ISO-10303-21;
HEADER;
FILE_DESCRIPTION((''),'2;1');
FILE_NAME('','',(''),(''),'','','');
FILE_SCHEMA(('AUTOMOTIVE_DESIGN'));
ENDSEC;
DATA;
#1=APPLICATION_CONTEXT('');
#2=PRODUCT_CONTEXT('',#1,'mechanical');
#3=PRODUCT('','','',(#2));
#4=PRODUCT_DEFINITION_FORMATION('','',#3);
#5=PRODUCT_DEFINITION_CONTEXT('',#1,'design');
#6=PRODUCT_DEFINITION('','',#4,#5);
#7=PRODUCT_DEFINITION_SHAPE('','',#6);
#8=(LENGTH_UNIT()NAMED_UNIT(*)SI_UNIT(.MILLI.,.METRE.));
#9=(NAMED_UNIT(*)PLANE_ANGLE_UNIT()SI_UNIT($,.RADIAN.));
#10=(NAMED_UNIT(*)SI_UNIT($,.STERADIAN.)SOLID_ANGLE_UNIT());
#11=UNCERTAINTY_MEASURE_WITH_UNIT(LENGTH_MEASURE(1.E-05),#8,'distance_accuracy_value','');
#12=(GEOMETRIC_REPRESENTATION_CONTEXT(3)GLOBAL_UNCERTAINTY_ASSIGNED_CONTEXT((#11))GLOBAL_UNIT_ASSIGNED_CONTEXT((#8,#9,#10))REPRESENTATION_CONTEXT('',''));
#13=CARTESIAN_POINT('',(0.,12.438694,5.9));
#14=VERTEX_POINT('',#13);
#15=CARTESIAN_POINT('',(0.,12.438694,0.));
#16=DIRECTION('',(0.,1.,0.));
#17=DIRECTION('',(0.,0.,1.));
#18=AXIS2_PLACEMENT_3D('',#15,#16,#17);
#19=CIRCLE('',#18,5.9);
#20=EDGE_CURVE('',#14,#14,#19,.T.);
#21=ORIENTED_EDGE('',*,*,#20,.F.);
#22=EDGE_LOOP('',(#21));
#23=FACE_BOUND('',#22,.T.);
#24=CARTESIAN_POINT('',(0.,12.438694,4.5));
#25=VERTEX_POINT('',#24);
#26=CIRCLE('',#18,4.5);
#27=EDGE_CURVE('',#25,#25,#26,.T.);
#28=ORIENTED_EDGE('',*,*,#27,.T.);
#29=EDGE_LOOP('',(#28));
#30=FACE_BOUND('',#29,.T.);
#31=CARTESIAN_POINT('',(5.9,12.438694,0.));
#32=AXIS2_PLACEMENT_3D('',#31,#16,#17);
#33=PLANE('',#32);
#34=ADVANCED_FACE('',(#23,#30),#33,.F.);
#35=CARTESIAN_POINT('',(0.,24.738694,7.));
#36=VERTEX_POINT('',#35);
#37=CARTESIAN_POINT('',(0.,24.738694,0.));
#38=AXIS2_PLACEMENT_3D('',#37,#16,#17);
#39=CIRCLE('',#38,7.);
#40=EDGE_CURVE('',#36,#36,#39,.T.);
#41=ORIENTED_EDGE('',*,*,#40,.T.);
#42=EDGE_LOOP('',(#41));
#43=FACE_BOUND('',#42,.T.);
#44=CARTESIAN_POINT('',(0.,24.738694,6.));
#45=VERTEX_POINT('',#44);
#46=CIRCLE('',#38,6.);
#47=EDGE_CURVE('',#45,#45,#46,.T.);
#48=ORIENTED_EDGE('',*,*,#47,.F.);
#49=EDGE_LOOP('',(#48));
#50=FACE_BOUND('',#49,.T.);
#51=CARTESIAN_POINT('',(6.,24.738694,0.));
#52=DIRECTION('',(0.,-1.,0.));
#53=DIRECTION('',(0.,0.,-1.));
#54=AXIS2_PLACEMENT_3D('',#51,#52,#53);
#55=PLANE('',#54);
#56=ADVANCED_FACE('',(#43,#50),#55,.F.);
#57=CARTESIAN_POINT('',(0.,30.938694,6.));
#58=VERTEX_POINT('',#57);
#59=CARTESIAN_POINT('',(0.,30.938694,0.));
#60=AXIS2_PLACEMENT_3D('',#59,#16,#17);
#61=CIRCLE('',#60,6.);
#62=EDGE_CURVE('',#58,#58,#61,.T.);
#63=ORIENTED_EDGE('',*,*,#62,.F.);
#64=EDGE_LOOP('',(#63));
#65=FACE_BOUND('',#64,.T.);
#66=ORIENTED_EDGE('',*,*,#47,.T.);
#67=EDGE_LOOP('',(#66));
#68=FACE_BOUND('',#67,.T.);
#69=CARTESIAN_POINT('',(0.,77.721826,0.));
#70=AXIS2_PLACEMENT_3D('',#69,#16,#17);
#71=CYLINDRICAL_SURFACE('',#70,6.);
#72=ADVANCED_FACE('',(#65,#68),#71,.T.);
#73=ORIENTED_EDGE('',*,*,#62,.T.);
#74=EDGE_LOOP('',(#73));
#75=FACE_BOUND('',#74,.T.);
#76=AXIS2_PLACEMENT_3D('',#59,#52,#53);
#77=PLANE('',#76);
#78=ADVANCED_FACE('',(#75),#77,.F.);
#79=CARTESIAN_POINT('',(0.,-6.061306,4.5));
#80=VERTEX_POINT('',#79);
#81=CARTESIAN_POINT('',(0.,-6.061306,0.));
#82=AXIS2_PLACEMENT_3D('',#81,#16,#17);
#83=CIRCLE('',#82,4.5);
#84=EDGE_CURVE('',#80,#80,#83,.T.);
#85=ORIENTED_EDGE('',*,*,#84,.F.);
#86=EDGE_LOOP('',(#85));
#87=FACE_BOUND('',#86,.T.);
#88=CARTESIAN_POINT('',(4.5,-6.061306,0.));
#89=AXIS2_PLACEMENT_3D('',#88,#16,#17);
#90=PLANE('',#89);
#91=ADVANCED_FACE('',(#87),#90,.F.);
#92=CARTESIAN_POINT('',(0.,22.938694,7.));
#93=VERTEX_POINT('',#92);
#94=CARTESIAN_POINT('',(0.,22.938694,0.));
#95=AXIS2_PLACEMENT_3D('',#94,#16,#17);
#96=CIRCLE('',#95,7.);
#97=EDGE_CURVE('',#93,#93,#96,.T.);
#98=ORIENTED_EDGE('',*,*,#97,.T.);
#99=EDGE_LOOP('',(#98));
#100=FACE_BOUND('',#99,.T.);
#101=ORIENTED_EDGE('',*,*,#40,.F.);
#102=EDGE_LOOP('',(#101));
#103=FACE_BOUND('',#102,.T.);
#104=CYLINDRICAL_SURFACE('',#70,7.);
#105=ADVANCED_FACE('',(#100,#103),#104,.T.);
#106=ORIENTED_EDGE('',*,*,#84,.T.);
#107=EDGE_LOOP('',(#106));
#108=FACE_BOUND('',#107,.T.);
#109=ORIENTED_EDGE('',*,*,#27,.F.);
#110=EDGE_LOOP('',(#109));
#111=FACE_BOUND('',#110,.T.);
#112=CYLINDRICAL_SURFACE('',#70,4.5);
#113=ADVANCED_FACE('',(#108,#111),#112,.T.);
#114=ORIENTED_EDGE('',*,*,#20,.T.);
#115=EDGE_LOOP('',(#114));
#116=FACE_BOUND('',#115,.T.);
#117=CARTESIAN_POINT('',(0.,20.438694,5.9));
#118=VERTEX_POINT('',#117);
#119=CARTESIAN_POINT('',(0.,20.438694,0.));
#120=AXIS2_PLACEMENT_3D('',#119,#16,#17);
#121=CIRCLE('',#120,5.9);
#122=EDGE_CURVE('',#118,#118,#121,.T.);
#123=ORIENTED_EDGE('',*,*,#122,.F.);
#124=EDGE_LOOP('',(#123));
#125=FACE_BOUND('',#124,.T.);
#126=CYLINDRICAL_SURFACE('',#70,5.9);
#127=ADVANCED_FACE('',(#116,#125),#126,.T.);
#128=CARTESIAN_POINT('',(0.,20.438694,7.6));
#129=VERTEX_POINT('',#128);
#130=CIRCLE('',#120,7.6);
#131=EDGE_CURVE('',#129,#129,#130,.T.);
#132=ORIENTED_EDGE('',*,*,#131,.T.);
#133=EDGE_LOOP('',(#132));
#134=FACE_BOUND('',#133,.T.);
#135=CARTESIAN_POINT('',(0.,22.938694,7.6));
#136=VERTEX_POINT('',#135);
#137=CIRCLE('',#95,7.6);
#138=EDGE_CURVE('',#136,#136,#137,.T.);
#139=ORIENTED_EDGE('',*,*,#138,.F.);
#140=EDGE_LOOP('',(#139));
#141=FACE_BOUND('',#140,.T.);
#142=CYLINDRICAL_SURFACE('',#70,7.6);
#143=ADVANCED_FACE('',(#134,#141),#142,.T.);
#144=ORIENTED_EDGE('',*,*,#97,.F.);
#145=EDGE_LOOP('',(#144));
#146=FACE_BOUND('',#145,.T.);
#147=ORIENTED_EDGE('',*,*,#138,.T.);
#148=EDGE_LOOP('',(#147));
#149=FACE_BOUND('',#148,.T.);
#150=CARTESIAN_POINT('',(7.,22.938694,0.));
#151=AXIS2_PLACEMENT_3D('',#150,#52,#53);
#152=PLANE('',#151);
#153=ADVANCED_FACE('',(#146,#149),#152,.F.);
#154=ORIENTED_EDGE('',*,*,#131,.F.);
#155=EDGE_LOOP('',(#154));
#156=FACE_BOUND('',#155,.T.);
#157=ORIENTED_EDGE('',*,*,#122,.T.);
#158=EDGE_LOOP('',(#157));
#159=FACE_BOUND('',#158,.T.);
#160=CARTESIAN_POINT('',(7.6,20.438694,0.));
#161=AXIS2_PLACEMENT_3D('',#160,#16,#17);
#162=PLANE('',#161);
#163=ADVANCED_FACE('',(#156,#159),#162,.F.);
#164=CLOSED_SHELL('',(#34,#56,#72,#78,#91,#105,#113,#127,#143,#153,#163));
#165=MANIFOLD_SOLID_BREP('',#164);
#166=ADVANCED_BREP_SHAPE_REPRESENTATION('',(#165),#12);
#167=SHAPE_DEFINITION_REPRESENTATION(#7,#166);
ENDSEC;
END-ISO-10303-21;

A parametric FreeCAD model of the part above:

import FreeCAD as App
import Part
import Sketcher

V = App.Vector
Q = App.Units.Quantity

doc = App.newDocument("Part")
body = doc.addObject("PartDesign::Body", "Body")

# Sketch on XY plane
sketch1 = body.newObject("Sketcher::SketchObject", "Sketch")
sketch1.AttachmentSupport = (doc.getObject("XY_Plane"), [""])
sketch1.MapMode = "FlatFace"
sketch1.addGeometry(Part.LineSegment(V(6, 30.9, 0), V(0, 30.9, 0)), False)
sketch1.addGeometry(Part.LineSegment(V(0, 30.9, 0), V(0, -6.1, 0)), False)
sketch1.addGeometry(Part.LineSegment(V(0, -6.1, 0), V(4.5, -6.1, 0)), False)
sketch1.addGeometry(Part.LineSegment(V(4.5, -6.1, 0), V(4.5, 12.4, 0)), False)
sketch1.addGeometry(Part.LineSegment(V(4.5, 12.4, 0), V(5.9, 12.4, 0)), False)
sketch1.addGeometry(Part.LineSegment(V(5.9, 12.4, 0), V(5.9, 20.4, 0)), False)
sketch1.addGeometry(Part.LineSegment(V(5.9, 20.4, 0), V(7.6, 20.4, 0)), False)
sketch1.addGeometry(Part.LineSegment(V(7.6, 20.4, 0), V(7.6, 22.9, 0)), False)
sketch1.addGeometry(Part.LineSegment(V(7.6, 22.9, 0), V(7, 22.9, 0)), False)
sketch1.addGeometry(Part.LineSegment(V(7, 22.9, 0), V(7, 24.7, 0)), False)
sketch1.addGeometry(Part.LineSegment(V(7, 24.7, 0), V(6, 24.7, 0)), False)
sketch1.addGeometry(Part.LineSegment(V(6, 24.7, 0), V(6, 30.9, 0)), False)
sketch1.addConstraint(Sketcher.Constraint("Coincident", 0, 2, 1, 1))
sketch1.addConstraint(Sketcher.Constraint("Coincident", 1, 2, 2, 1))
sketch1.addConstraint(Sketcher.Constraint("Coincident", 2, 2, 3, 1))
sketch1.addConstraint(Sketcher.Constraint("Coincident", 3, 2, 4, 1))
sketch1.addConstraint(Sketcher.Constraint("Coincident", 4, 2, 5, 1))
sketch1.addConstraint(Sketcher.Constraint("Coincident", 5, 2, 6, 1))
sketch1.addConstraint(Sketcher.Constraint("Coincident", 6, 2, 7, 1))
sketch1.addConstraint(Sketcher.Constraint("Coincident", 7, 2, 8, 1))
sketch1.addConstraint(Sketcher.Constraint("Coincident", 8, 2, 9, 1))
sketch1.addConstraint(Sketcher.Constraint("Coincident", 9, 2, 10, 1))
sketch1.addConstraint(Sketcher.Constraint("Coincident", 10, 2, 11, 1))
sketch1.addConstraint(Sketcher.Constraint("Coincident", 11, 2, 0, 1))
sketch1.addConstraint(Sketcher.Constraint("Horizontal", 0))
sketch1.addConstraint(Sketcher.Constraint("Vertical", 1))
sketch1.addConstraint(Sketcher.Constraint("Horizontal", 2))
sketch1.addConstraint(Sketcher.Constraint("Vertical", 3))
sketch1.addConstraint(Sketcher.Constraint("Horizontal", 4))
sketch1.addConstraint(Sketcher.Constraint("Vertical", 5))
sketch1.addConstraint(Sketcher.Constraint("Horizontal", 6))
sketch1.addConstraint(Sketcher.Constraint("Vertical", 7))
sketch1.addConstraint(Sketcher.Constraint("Horizontal", 8))
sketch1.addConstraint(Sketcher.Constraint("Vertical", 9))
sketch1.addConstraint(Sketcher.Constraint("Horizontal", 10))
sketch1.addConstraint(Sketcher.Constraint("Vertical", 11))
sketch1.addConstraint(Sketcher.Constraint("PointOnObject", 0, 2, -2))
sketch1.addConstraint(Sketcher.Constraint("DistanceX", 0, 2, 0, 1, Q("6 mm")))
sketch1.addConstraint(Sketcher.Constraint("DistanceX", 10, 2, 10, 1, Q("1 mm")))
sketch1.addConstraint(Sketcher.Constraint("DistanceY", 1, 2, 1, 1, Q("37 mm")))
sketch1.addConstraint(Sketcher.Constraint("DistanceY", 5, 1, 5, 2, Q("8 mm")))
sketch1.addConstraint(Sketcher.Constraint("DistanceX", 2, 1, 2, 2, Q("4.5 mm")))
sketch1.addConstraint(Sketcher.Constraint("DistanceX", 4, 1, 4, 2, Q("1.4 mm")))
sketch1.addConstraint(Sketcher.Constraint("DistanceX", 6, 1, 6, 2, Q("1.7 mm")))
sketch1.addConstraint(Sketcher.Constraint("DistanceY", 3, 1, 3, 2, Q("18.5 mm")))
sketch1.addConstraint(Sketcher.Constraint("DistanceY", 7, 1, 7, 2, Q("2.5 mm")))
sketch1.addConstraint(Sketcher.Constraint("DistanceY", 9, 1, 9, 2, Q("1.8 mm")))
sketch1.addConstraint(Sketcher.Constraint("DistanceY", -1, 1, 0, 2, Q("30.938694 mm")))
revolution = body.newObject("PartDesign::Revolution", "Revolution")
revolution.Profile = sketch1
revolution.ReferenceAxis = (sketch1, ["V_Axis"])
revolution.Angle = 360

doc.recompute()
